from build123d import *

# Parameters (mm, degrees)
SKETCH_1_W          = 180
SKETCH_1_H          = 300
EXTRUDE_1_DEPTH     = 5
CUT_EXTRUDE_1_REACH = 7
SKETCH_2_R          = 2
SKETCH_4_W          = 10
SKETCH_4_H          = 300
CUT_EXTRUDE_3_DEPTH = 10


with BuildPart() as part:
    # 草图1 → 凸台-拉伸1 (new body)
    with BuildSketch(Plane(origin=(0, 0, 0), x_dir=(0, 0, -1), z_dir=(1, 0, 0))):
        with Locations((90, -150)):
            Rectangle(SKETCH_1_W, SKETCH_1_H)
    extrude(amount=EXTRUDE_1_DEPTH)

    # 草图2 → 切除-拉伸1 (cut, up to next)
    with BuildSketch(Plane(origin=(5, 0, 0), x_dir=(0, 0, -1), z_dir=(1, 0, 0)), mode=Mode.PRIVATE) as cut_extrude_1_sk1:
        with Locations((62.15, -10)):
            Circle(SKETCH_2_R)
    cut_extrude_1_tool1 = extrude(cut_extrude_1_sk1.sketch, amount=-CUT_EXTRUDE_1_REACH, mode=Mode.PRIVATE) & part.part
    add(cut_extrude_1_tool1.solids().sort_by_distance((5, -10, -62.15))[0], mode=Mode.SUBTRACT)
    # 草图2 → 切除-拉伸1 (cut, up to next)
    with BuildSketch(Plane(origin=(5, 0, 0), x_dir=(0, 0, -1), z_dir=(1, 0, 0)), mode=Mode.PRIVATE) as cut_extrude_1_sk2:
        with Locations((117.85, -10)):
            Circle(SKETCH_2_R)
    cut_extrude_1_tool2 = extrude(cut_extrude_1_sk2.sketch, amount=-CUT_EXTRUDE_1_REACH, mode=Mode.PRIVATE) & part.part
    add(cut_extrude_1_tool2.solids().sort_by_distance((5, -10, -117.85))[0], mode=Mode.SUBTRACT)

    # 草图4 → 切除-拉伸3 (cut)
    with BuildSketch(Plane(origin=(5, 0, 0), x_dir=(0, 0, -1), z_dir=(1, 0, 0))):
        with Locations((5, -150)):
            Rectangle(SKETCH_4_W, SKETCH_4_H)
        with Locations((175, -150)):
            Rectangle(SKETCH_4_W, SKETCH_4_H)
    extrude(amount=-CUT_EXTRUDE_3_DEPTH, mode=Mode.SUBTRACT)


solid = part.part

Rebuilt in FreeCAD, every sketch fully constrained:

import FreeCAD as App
import Part
import Sketcher

doc = App.newDocument("Part")
body = doc.addObject("PartDesign::Body", "Body")

# Sketch on YZ plane
sketch1 = doc.addObject("Sketcher::SketchObject", "Sketch")
body.addObject(sketch1)
sketch1.AttachmentSupport = (doc.YZ_Plane, [""])
sketch1.MapMode = "FlatFace"
sketch1.addGeometry(Part.LineSegment(App.Vector(0, 0, 0), App.Vector(-300, 0, 0)), False)
sketch1.addGeometry(Part.LineSegment(App.Vector(-300, 0, 0), App.Vector(-300, -180, 0)), False)
sketch1.addGeometry(Part.LineSegment(App.Vector(-300, -180, 0), App.Vector(0, -180, 0)), False)
sketch1.addGeometry(Part.LineSegment(App.Vector(0, -180, 0), App.Vector(0, 0, 0)), False)
sketch1.addConstraint(Sketcher.Constraint("Coincident", 0, 2, 1, 1))
sketch1.addConstraint(Sketcher.Constraint("Coincident", 1, 2, 2, 1))
sketch1.addConstraint(Sketcher.Constraint("Coincident", 2, 2, 3, 1))
sketch1.addConstraint(Sketcher.Constraint("Coincident", 3, 2, 0, 1))
sketch1.addConstraint(Sketcher.Constraint("Horizontal", 0))
sketch1.addConstraint(Sketcher.Constraint("Vertical", 1))
sketch1.addConstraint(Sketcher.Constraint("Horizontal", 2))
sketch1.addConstraint(Sketcher.Constraint("Vertical", 3))
sketch1.addConstraint(Sketcher.Constraint("Coincident", 3, 2, -1, 1))
sketch1.addConstraint(Sketcher.Constraint("DistanceX", 0, 2, 0, 1, 300.0))
sketch1.addConstraint(Sketcher.Constraint("DistanceY", 1, 2, 1, 1, 180.0))
pad1 = doc.addObject("PartDesign::Pad", "Pad")
body.addObject(pad1)
pad1.Profile = sketch1
pad1.Length = 5

# Sketch on YZ plane
sketch2 = doc.addObject("Sketcher::SketchObject", "Sketch001")
body.addObject(sketch2)
sketch2.AttachmentSupport = (doc.YZ_Plane, [""])
sketch2.MapMode = "FlatFace"
sketch2.AttachmentOffset = App.Placement(App.Vector(0, 0, 5), App.Rotation())
sketch2.addGeometry(Part.Circle(App.Vector(-10, -62.1, 0), App.Vector(0, 0, 1), 2), False)
sketch2.addConstraint(Sketcher.Constraint("Diameter", 0, 4.0))
sketch2.addConstraint(Sketcher.Constraint("DistanceX", 0, 3, -1, 1, 10.0))
sketch2.addConstraint(Sketcher.Constraint("DistanceY", 0, 3, -1, 1, 62.15))
pocket1 = doc.addObject("PartDesign::Pocket", "Pocket")
body.addObject(pocket1)
pocket1.Profile = sketch2
pocket1.Type = "UpToFirst"

# Sketch on YZ plane
sketch3 = doc.addObject("Sketcher::SketchObject", "Sketch002")
body.addObject(sketch3)
sketch3.AttachmentSupport = (doc.YZ_Plane, [""])
sketch3.MapMode = "FlatFace"
sketch3.AttachmentOffset = App.Placement(App.Vector(0, 0, 5), App.Rotation())
sketch3.addGeometry(Part.Circle(App.Vector(-10, -117.8, 0), App.Vector(0, 0, 1), 2), False)
sketch3.addConstraint(Sketcher.Constraint("Diameter", 0, 4.0))
sketch3.addConstraint(Sketcher.Constraint("DistanceX", 0, 3, -1, 1, 10.0))
sketch3.addConstraint(Sketcher.Constraint("DistanceY", 0, 3, -1, 1, 117.85))
pocket2 = doc.addObject("PartDesign::Pocket", "Pocket001")
body.addObject(pocket2)
pocket2.Profile = sketch3
pocket2.Type = "UpToFirst"

# Sketch on YZ plane
sketch4 = doc.addObject("Sketcher::SketchObject", "Sketch003")
body.addObject(sketch4)
sketch4.AttachmentSupport = (doc.YZ_Plane, [""])
sketch4.MapMode = "FlatFace"
sketch4.AttachmentOffset = App.Placement(App.Vector(0, 0, 5), App.Rotation())
sketch4.addGeometry(Part.LineSegment(App.Vector(0, 0, 0), App.Vector(-300, 0, 0)), False)
sketch4.addGeometry(Part.LineSegment(App.Vector(-300, 0, 0), App.Vector(-300, -10, 0)), False)
sketch4.addGeometry(Part.LineSegment(App.Vector(-300, -10, 0), App.Vector(0, -10, 0)), False)
sketch4.addGeometry(Part.LineSegment(App.Vector(0, -10, 0), App.Vector(0, 0, 0)), False)
sketch4.addGeometry(Part.LineSegment(App.Vector(0, -170, 0), App.Vector(-300, -170, 0)), False)
sketch4.addGeometry(Part.LineSegment(App.Vector(-300, -170, 0), App.Vector(-300, -180, 0)), False)
sketch4.addGeometry(Part.LineSegment(App.Vector(-300, -180, 0), App.Vector(0, -180, 0)), False)
sketch4.addGeometry(Part.LineSegment(App.Vector(0, -180, 0), App.Vector(0, -170, 0)), False)
sketch4.addConstraint(Sketcher.Constraint("Coincident", 0, 2, 1, 1))
sketch4.addConstraint(Sketcher.Constraint("Coincident", 1, 2, 2, 1))
sketch4.addConstraint(Sketcher.Constraint("Coincident", 2, 2, 3, 1))
sketch4.addConstraint(Sketcher.Constraint("Coincident", 3, 2, 0, 1))
sketch4.addConstraint(Sketcher.Constraint("Coincident", 4, 2, 5, 1))
sketch4.addConstraint(Sketcher.Constraint("Coincident", 5, 2, 6, 1))
sketch4.addConstraint(Sketcher.Constraint("Coincident", 6, 2, 7, 1))
sketch4.addConstraint(Sketcher.Constraint("Coincident", 7, 2, 4, 1))
sketch4.addConstraint(Sketcher.Constraint("Horizontal", 0))
sketch4.addConstraint(Sketcher.Constraint("Vertical", 1))
sketch4.addConstraint(Sketcher.Constraint("Horizontal", 2))
sketch4.addConstraint(Sketcher.Constraint("Vertical", 3))
sketch4.addConstraint(Sketcher.Constraint("Horizontal", 4))
sketch4.addConstraint(Sketcher.Constraint("Vertical", 5))
sketch4.addConstraint(Sketcher.Constraint("Horizontal", 6))
sketch4.addConstraint(Sketcher.Constraint("Vertical", 7))
sketch4.addConstraint(Sketcher.Constraint("Coincident", 3, 2, -1, 1))
sketch4.addConstraint(Sketcher.Constraint("PointOnObject", 6, 2, -2))
sketch4.addConstraint(Sketcher.Constraint("Vertical", 1, 2, 4, 2))
sketch4.addConstraint(Sketcher.Constraint("Equal", 3, 5))
sketch4.addConstraint(Sketcher.Constraint("DistanceX", 0, 2, 0, 1, 300.0))
sketch4.addConstraint(Sketcher.Constraint("DistanceY", 1, 2, 1, 1, 10.0))
sketch4.addConstraint(Sketcher.Constraint("DistanceY", 4, 2, -1, 1, 170.0))
pocket3 = doc.addObject("PartDesign::Pocket", "Pocket002")
body.addObject(pocket3)
pocket3.Profile = sketch4
pocket3.Length = 10

doc.recompute()
